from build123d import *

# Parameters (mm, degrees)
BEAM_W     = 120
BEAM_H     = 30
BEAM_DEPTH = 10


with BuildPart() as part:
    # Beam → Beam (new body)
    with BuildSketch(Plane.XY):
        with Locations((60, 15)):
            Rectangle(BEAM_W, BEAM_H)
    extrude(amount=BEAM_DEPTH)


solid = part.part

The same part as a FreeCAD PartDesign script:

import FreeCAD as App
import Part
import Sketcher

doc = App.newDocument("Part")
body = doc.addObject("PartDesign::Body", "Body")

sketch1 = body.newObject("Sketcher::SketchObject", "Sketch")
sketch1.AttachmentSupport = (doc.getObject("XY_Plane"), [""])
sketch1.MapMode = "FlatFace"
sketch1.addGeometry(Part.LineSegment(App.Vector(0, 30, 0), App.Vector(0, 0, 0)), False)
sketch1.addGeometry(Part.LineSegment(App.Vector(0, 0, 0), App.Vector(120, 0, 0)), False)
sketch1.addGeometry(Part.LineSegment(App.Vector(120, 0, 0), App.Vector(120, 30, 0)), False)
sketch1.addGeometry(Part.LineSegment(App.Vector(120, 30, 0), App.Vector(0, 30, 0)), False)
sketch1.addConstraint(Sketcher.Constraint("Coincident", 0, 2, 1, 1))
sketch1.addConstraint(Sketcher.Constraint("Coincident", 1, 2, 2, 1))
sketch1.addConstraint(Sketcher.Constraint("Coincident", 2, 2, 3, 1))
sketch1.addConstraint(Sketcher.Constraint("Coincident", 3, 2, 0, 1))
sketch1.addConstraint(Sketcher.Constraint("Vertical", 0))
sketch1.addConstraint(Sketcher.Constraint("Horizontal", 1))
sketch1.addConstraint(Sketcher.Constraint("Vertical", 2))
sketch1.addConstraint(Sketcher.Constraint("Horizontal", 3))
sketch1.addConstraint(Sketcher.Constraint("Coincident", 0, 2, -1, 1))
sketch1.addConstraint(Sketcher.Constraint("DistanceX", 1, 1, 1, 2, 120.0))
sketch1.addConstraint(Sketcher.Constraint("DistanceY", 0, 2, 0, 1, 30.0))
pad1 = body.newObject("PartDesign::Pad", "Pad")
pad1.Profile = sketch1
pad1.Length = 10

doc.recompute()
